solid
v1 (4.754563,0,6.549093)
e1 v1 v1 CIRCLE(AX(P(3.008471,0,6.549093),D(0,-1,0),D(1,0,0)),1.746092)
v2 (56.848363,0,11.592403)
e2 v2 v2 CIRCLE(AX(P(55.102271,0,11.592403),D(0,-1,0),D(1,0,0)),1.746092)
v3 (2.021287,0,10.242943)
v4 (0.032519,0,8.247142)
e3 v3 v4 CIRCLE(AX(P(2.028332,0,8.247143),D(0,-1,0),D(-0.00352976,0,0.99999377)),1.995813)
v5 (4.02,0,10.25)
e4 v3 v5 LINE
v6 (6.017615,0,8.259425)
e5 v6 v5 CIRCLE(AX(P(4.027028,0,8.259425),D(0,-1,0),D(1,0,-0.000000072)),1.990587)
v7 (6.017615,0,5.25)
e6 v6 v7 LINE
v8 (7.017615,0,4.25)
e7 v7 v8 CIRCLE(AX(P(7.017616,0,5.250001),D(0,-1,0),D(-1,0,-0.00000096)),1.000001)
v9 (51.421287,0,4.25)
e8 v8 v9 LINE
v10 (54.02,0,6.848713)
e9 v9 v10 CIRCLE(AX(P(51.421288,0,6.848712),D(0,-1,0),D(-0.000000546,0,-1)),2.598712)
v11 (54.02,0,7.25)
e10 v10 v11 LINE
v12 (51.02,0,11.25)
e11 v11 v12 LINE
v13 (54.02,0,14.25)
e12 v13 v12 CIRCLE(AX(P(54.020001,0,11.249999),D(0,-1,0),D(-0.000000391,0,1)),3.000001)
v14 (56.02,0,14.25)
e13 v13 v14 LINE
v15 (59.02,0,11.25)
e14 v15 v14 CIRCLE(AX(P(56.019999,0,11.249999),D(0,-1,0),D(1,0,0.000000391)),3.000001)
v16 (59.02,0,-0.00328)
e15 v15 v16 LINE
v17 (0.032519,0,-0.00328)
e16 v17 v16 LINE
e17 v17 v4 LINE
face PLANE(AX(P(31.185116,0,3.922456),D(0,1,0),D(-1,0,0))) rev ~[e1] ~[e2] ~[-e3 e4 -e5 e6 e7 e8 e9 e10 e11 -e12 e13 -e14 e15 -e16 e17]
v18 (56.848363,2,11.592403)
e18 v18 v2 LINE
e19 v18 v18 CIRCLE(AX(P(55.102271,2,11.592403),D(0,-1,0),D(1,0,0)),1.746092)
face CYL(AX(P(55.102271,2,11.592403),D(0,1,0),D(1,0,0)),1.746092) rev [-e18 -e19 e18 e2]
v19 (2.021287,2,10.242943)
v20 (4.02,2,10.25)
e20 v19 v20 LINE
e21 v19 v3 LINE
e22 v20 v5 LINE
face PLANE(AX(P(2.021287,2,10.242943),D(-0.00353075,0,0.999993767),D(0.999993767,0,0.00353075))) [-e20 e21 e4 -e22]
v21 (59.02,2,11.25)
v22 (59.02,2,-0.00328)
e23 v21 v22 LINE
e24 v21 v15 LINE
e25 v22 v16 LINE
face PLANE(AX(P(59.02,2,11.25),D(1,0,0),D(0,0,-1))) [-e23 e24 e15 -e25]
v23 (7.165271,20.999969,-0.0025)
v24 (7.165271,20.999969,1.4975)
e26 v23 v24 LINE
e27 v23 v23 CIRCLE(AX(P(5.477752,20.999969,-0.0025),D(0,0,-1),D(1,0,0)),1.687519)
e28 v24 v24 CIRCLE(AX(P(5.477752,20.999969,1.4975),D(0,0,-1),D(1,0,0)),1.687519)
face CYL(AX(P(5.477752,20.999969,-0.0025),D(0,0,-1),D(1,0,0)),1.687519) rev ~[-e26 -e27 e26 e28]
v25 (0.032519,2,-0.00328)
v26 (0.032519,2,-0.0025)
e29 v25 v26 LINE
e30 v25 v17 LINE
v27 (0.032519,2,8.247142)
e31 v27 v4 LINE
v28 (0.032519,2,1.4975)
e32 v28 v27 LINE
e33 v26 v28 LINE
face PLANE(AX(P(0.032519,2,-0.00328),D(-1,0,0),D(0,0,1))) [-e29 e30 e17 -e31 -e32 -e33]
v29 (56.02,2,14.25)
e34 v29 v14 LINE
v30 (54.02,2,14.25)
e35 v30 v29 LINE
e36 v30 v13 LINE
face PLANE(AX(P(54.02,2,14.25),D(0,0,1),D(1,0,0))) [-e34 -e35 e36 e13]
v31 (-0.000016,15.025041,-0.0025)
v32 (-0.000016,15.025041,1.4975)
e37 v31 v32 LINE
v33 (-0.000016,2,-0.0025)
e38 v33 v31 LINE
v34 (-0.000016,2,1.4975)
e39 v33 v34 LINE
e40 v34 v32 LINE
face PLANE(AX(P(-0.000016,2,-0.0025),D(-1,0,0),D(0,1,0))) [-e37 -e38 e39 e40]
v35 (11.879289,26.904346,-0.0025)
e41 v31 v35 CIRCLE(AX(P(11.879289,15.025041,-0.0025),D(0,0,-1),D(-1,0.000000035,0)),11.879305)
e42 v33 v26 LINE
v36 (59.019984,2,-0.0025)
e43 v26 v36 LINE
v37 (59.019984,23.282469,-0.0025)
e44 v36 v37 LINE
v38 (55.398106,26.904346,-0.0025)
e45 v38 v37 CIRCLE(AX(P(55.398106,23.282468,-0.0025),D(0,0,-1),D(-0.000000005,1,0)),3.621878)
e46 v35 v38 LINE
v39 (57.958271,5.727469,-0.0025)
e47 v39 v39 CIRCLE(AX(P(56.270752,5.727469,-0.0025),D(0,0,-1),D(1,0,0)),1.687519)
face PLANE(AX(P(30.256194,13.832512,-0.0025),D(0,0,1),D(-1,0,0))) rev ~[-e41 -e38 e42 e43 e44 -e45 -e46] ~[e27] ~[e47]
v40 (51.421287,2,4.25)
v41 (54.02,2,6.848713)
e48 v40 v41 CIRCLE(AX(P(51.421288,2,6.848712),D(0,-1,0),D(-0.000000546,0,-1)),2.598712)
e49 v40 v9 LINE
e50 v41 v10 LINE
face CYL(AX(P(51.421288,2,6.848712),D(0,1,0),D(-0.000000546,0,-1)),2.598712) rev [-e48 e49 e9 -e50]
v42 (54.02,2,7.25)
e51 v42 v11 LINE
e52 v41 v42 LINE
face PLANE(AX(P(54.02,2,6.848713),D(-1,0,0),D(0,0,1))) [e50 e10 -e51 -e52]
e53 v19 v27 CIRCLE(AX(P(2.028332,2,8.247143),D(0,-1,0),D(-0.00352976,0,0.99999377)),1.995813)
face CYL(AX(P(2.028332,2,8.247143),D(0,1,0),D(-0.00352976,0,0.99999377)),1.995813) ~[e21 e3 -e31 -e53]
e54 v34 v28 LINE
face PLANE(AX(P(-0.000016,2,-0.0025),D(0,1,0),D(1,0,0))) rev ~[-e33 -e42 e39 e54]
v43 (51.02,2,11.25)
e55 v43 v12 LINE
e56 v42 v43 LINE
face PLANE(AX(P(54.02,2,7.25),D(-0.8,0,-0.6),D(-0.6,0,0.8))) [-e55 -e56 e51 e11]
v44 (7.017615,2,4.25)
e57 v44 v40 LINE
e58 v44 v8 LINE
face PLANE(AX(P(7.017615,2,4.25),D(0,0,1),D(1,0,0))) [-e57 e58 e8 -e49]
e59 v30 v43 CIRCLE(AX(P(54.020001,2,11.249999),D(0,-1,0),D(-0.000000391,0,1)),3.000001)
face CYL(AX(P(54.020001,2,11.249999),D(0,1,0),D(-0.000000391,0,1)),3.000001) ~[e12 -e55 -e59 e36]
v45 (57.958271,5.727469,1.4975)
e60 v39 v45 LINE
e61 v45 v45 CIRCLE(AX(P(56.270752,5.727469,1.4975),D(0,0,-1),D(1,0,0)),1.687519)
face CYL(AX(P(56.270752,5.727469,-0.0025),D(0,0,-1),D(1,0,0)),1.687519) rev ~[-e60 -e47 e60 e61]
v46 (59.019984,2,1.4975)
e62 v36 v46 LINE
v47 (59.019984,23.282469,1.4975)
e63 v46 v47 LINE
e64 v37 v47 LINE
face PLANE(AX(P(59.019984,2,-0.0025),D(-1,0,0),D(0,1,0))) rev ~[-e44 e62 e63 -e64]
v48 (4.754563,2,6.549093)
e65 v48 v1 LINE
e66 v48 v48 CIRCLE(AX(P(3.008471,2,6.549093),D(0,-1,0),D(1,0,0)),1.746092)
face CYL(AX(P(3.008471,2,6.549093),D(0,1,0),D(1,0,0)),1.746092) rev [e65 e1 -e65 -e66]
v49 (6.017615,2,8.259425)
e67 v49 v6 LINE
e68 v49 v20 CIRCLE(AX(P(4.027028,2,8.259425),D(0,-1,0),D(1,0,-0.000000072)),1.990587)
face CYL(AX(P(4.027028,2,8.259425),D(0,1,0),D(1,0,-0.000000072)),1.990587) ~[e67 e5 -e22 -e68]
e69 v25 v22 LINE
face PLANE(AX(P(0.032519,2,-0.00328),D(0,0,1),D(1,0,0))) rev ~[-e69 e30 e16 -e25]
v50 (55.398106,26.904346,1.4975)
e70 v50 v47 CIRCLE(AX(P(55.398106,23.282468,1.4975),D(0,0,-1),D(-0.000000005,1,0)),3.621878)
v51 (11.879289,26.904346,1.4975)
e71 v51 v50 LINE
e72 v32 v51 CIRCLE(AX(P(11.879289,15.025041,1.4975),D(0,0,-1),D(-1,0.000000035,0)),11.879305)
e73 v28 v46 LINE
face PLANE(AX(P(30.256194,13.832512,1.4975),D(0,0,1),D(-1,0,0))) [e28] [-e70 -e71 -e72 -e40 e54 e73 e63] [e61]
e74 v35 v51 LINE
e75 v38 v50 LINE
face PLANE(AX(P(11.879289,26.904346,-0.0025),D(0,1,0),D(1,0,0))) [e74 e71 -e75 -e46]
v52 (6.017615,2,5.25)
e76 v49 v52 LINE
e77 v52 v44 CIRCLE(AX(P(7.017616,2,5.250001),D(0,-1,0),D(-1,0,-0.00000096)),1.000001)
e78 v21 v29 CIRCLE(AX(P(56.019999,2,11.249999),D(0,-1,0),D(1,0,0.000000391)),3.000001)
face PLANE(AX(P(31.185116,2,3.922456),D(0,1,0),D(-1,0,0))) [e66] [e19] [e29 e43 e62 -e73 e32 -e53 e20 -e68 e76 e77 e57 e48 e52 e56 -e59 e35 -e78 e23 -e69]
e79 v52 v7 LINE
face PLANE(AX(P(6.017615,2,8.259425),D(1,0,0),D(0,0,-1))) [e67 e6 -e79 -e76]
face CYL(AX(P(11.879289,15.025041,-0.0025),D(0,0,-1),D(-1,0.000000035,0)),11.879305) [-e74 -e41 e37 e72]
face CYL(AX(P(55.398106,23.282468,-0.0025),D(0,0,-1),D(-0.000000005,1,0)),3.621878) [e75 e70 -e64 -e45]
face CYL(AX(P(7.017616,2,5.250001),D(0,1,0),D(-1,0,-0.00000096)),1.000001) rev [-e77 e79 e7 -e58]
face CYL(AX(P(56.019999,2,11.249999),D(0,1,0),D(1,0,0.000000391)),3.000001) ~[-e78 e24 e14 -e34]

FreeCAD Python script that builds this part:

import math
import FreeCAD as App
import Part
import Sketcher
from FreeCAD import Vector

doc = App.newDocument("Part")
body = doc.addObject("PartDesign::Body", "Body")

# Sketch on XZ plane
sketch1 = doc.addObject("Sketcher::SketchObject", "Sketch")
body.addObject(sketch1)
sketch1.AttachmentSupport = (doc.XZ_Plane, [""])
sketch1.MapMode = "FlatFace"
sketch1.AttachmentOffset = App.Placement(Vector(0, 0, 1.2525), App.Rotation())
sketch1.addGeometry([
    Part.LineSegment(Vector(69.999984, 0, 0), Vector(10.979984, 0, 0)),  # 0
    Part.LineSegment(Vector(10.979984, 0, 0), Vector(10.979984, -13.025041, 0)),  # 1
    Part.ArcOfCircle(Part.Circle(Vector(22.859289, -13.025041, 0), Vector(0, 0, 1), 11.879305), math.radians(-179.999998), math.radians(-90.000002)),  # 2
    Part.LineSegment(Vector(22.859289, -24.904346, 0), Vector(66.378106, -24.904346, 0)),  # 3
    Part.ArcOfCircle(Part.Circle(Vector(66.378106, -21.282468, 0), Vector(0, 0, 1), 3.621878), math.radians(-90), math.radians(-0.000016)),  # 4
    Part.LineSegment(Vector(69.999984, -21.282469, 0), Vector(69.999984, 0, 0)),  # 5
    Part.Circle(Vector(16.457752, -18.999969, 0), Vector(0, 0, 1), 1.687519),  # 6
    Part.Circle(Vector(67.250752, -3.727469, 0), Vector(0, 0, 1), 1.687519),  # 7
], False)
sketch1.addConstraint([
    Sketcher.Constraint("Coincident", 0, 2, 1, 1),
    Sketcher.Constraint("Tangent", 1, 2, 2, 1),
    Sketcher.Constraint("Tangent", 2, 2, 3, 1),
    Sketcher.Constraint("Tangent", 3, 2, 4, 1),
    Sketcher.Constraint("Tangent", 4, 2, 5, 1),
    Sketcher.Constraint("Coincident", 5, 2, 0, 1),
    Sketcher.Constraint("Horizontal", 0),
    Sketcher.Constraint("Vertical", 1),
    Sketcher.Constraint("Horizontal", 3),
    Sketcher.Constraint("Vertical", 5),
    Sketcher.Constraint("Equal", 6, 7),
    Sketcher.Constraint("PointOnObject", 0, 2, -1),
    Sketcher.Constraint("DistanceX", 0, 2, 0, 1, 59.02),
    Sketcher.Constraint("Diameter", 6, 3.375038),
    Sketcher.Constraint("Radius", 2, 11.879305),
    Sketcher.Constraint("Radius", 4, 3.621878),
    Sketcher.Constraint("DistanceY", 4, 3, 7, 3, 17.554999),
    Sketcher.Constraint("DistanceX", 6, 3, 7, 3, 50.793),
    Sketcher.Constraint("DistanceY", 1, 2, 1, 1, 13.025041),
    Sketcher.Constraint("DistanceY", 4, 3, 6, 3, 2.282499),
    Sketcher.Constraint("DistanceX", -1, 1, 2, 3, 22.859289),
    Sketcher.Constraint("DistanceX", -1, 1, 6, 3, 16.457752),
])
pad1 = doc.addObject("PartDesign::Pad", "Pad")
body.addObject(pad1)
pad1.Profile = sketch1
pad1.Length = 1.5
pad1.Reversed = True
body2 = doc.addObject("PartDesign::Body", "Body001")

# Sketch on XY plane
sketch2 = doc.addObject("Sketcher::SketchObject", "Sketch001")
body2.addObject(sketch2)
sketch2.AttachmentSupport = (doc.getObject("XY_Plane001"), [""])
sketch2.MapMode = "FlatFace"
sketch2.addGeometry([
    Part.LineSegment(Vector(11.012519, 6.997142, 0), Vector(11.012519, -1.25328, 0)),  # 0
    Part.LineSegment(Vector(11.012519, -1.25328, 0), Vector(70, -1.25328, 0)),  # 1
    Part.LineSegment(Vector(70, -1.25328, 0), Vector(70, 10, 0)),  # 2
    Part.ArcOfCircle(Part.Circle(Vector(66.999999, 9.999999, 0), Vector(0, 0, 1), 3.000001), math.radians(0.000022), math.radians(89.999978)),  # 3
    Part.LineSegment(Vector(67, 13, 0), Vector(65, 13, 0)),  # 4
    Part.ArcOfCircle(Part.Circle(Vector(65.000001, 9.999999, 0), Vector(0, 0, 1), 3.000001), math.radians(90.000022), math.radians(179.999978)),  # 5
    Part.LineSegment(Vector(62, 10, 0), Vector(65, 6, 0)),  # 6
    Part.LineSegment(Vector(65, 6, 0), Vector(65, 5.598713, 0)),  # 7
    Part.ArcOfCircle(Part.Circle(Vector(62.401288, 5.598712, 0), Vector(0, 0, 1), 2.598712), math.radians(-90.000031), math.radians(0.000031)),  # 8
    Part.LineSegment(Vector(62.401287, 3, 0), Vector(17.997615, 3, 0)),  # 9
    Part.ArcOfCircle(Part.Circle(Vector(17.997616, 4.000001, 0), Vector(0, 0, 1), 1.000001), math.radians(-179.999945), math.radians(-90.000055)),  # 10
    Part.LineSegment(Vector(16.997615, 4, 0), Vector(16.997615, 7.009425, 0)),  # 11
    Part.ArcOfCircle(Part.Circle(Vector(15.007028, 7.009425, 0), Vector(0, 0, 1), 1.990587), math.radians(-0.000004), math.radians(90.202282)),  # 12
    Part.LineSegment(Vector(15, 9, 0), Vector(13.001287, 8.992943, 0)),  # 13
    Part.ArcOfCircle(Part.Circle(Vector(13.008332, 6.997143, 0), Vector(0, 0, 1), 1.995813), math.radians(90.202241), math.radians(180.00002)),  # 14
    Part.Circle(Vector(13.988471, 5.299093, 0), Vector(0, 0, 1), 1.746092),  # 15
    Part.Circle(Vector(66.082271, 10.342403, 0), Vector(0, 0, 1), 1.746092),  # 16
], False)
sketch2.addConstraint([
    Sketcher.Constraint("Coincident", 0, 2, 1, 1),
    Sketcher.Constraint("Coincident", 1, 2, 2, 1),
    Sketcher.Constraint("Tangent", 2, 2, 3, 1),
    Sketcher.Constraint("Tangent", 3, 2, 4, 1),
    Sketcher.Constraint("Tangent", 4, 2, 5, 1),
    Sketcher.Constraint("Coincident", 5, 2, 6, 1),
    Sketcher.Constraint("Coincident", 6, 2, 7, 1),
    Sketcher.Constraint("Tangent", 7, 2, 8, 2),
    Sketcher.Constraint("Tangent", 8, 1, 9, 1),
    Sketcher.Constraint("Tangent", 9, 2, 10, 2),
    Sketcher.Constraint("Tangent", 10, 1, 11, 1),
    Sketcher.Constraint("Tangent", 11, 2, 12, 1),
    Sketcher.Constraint("Tangent", 12, 2, 13, 1),
    Sketcher.Constraint("Tangent", 13, 2, 14, 1),
    Sketcher.Constraint("Tangent", 14, 2, 0, 1),
    Sketcher.Constraint("Vertical", 0),
    Sketcher.Constraint("Horizontal", 1),
    Sketcher.Constraint("Vertical", 2),
    Sketcher.Constraint("Horizontal", 4),
    Sketcher.Constraint("Vertical", 7),
    Sketcher.Constraint("Horizontal", 9),
    Sketcher.Constraint("Vertical", 11),
    Sketcher.Constraint("Equal", 3, 5),
    Sketcher.Constraint("Equal", 15, 16),
    Sketcher.Constraint("Horizontal", 2, 2, 5, 2),
    Sketcher.Constraint("Vertical", 4, 2, 6, 2),
    Sketcher.Constraint("Radius", 3, 3.000001),
    Sketcher.Constraint("Radius", 10, 1.000001),
    Sketcher.Constraint("DistanceX", 4, 2, 4, 1, 2.0),
    Sketcher.Constraint("Distance", 6, 5.0),
    Sketcher.Constraint("DistanceX", -1, 1, 3, 3, 66.999999),
    Sketcher.Constraint("DistanceY", -1, 1, 3, 3, 9.999999),
    Sketcher.Constraint("DistanceY", -1, 1, 10, 3, 4.000001),
    Sketcher.Constraint("DistanceX", -1, 1, 12, 2, 15.0),
    Sketcher.Constraint("DistanceY", -1, 1, 12, 2, 9.0),
    Sketcher.Constraint("Radius", 8, 2.598712),
    Sketcher.Constraint("Diameter", 15, 3.492184),
    Sketcher.Constraint("Radius", 12, 1.990587),
    Sketcher.Constraint("Radius", 14, 1.995813),
    Sketcher.Constraint("DistanceX", 1, 1, 1, 2, 58.987481),
    Sketcher.Constraint("DistanceY", 2, 1, 2, 2, 11.25328),
    Sketcher.Constraint("DistanceX", 9, 2, 9, 1, 44.403672),
    Sketcher.Constraint("DistanceX", -1, 1, 15, 3, 13.988471),
    Sketcher.Constraint("DistanceX", -1, 1, 16, 3, 66.082271),
    Sketcher.Constraint("DistanceY", 15, 3, 14, 3, 1.69805),
    Sketcher.Constraint("DistanceY", 8, 3, 16, 3, 4.743691),
])
pad2 = doc.addObject("PartDesign::Pad", "Pad001")
body2.addObject(pad2)
pad2.Profile = sketch2
pad2.Length = 2
doc.recompute()

boolean = doc.addObject("PartDesign::Boolean", "Boolean")
body2.addObject(boolean)
boolean.Type = "Fuse"
boolean.addObjects([body])
body3 = doc.addObject("PartDesign::Body", "Body002")
doc.recompute()

body2.Placement = App.Placement(Vector(0, 0, 0), App.Rotation(Vector(1, 0, 0), 90))
boolean2 = doc.addObject("PartDesign::Boolean", "Boolean001")
body3.addObject(boolean2)
boolean2.Type = "Fuse"
boolean2.addObjects([body2])
body4 = doc.addObject("PartDesign::Body", "Body003")
doc.recompute()

body3.Placement = App.Placement(Vector(-10.98, 2, 1.25), App.Rotation(Vector(0, 0, 1), 0))
boolean3 = doc.addObject("PartDesign::Boolean", "Boolean002")
body4.addObject(boolean3)
boolean3.Type = "Fuse"
boolean3.addObjects([body3])

doc.recompute()
